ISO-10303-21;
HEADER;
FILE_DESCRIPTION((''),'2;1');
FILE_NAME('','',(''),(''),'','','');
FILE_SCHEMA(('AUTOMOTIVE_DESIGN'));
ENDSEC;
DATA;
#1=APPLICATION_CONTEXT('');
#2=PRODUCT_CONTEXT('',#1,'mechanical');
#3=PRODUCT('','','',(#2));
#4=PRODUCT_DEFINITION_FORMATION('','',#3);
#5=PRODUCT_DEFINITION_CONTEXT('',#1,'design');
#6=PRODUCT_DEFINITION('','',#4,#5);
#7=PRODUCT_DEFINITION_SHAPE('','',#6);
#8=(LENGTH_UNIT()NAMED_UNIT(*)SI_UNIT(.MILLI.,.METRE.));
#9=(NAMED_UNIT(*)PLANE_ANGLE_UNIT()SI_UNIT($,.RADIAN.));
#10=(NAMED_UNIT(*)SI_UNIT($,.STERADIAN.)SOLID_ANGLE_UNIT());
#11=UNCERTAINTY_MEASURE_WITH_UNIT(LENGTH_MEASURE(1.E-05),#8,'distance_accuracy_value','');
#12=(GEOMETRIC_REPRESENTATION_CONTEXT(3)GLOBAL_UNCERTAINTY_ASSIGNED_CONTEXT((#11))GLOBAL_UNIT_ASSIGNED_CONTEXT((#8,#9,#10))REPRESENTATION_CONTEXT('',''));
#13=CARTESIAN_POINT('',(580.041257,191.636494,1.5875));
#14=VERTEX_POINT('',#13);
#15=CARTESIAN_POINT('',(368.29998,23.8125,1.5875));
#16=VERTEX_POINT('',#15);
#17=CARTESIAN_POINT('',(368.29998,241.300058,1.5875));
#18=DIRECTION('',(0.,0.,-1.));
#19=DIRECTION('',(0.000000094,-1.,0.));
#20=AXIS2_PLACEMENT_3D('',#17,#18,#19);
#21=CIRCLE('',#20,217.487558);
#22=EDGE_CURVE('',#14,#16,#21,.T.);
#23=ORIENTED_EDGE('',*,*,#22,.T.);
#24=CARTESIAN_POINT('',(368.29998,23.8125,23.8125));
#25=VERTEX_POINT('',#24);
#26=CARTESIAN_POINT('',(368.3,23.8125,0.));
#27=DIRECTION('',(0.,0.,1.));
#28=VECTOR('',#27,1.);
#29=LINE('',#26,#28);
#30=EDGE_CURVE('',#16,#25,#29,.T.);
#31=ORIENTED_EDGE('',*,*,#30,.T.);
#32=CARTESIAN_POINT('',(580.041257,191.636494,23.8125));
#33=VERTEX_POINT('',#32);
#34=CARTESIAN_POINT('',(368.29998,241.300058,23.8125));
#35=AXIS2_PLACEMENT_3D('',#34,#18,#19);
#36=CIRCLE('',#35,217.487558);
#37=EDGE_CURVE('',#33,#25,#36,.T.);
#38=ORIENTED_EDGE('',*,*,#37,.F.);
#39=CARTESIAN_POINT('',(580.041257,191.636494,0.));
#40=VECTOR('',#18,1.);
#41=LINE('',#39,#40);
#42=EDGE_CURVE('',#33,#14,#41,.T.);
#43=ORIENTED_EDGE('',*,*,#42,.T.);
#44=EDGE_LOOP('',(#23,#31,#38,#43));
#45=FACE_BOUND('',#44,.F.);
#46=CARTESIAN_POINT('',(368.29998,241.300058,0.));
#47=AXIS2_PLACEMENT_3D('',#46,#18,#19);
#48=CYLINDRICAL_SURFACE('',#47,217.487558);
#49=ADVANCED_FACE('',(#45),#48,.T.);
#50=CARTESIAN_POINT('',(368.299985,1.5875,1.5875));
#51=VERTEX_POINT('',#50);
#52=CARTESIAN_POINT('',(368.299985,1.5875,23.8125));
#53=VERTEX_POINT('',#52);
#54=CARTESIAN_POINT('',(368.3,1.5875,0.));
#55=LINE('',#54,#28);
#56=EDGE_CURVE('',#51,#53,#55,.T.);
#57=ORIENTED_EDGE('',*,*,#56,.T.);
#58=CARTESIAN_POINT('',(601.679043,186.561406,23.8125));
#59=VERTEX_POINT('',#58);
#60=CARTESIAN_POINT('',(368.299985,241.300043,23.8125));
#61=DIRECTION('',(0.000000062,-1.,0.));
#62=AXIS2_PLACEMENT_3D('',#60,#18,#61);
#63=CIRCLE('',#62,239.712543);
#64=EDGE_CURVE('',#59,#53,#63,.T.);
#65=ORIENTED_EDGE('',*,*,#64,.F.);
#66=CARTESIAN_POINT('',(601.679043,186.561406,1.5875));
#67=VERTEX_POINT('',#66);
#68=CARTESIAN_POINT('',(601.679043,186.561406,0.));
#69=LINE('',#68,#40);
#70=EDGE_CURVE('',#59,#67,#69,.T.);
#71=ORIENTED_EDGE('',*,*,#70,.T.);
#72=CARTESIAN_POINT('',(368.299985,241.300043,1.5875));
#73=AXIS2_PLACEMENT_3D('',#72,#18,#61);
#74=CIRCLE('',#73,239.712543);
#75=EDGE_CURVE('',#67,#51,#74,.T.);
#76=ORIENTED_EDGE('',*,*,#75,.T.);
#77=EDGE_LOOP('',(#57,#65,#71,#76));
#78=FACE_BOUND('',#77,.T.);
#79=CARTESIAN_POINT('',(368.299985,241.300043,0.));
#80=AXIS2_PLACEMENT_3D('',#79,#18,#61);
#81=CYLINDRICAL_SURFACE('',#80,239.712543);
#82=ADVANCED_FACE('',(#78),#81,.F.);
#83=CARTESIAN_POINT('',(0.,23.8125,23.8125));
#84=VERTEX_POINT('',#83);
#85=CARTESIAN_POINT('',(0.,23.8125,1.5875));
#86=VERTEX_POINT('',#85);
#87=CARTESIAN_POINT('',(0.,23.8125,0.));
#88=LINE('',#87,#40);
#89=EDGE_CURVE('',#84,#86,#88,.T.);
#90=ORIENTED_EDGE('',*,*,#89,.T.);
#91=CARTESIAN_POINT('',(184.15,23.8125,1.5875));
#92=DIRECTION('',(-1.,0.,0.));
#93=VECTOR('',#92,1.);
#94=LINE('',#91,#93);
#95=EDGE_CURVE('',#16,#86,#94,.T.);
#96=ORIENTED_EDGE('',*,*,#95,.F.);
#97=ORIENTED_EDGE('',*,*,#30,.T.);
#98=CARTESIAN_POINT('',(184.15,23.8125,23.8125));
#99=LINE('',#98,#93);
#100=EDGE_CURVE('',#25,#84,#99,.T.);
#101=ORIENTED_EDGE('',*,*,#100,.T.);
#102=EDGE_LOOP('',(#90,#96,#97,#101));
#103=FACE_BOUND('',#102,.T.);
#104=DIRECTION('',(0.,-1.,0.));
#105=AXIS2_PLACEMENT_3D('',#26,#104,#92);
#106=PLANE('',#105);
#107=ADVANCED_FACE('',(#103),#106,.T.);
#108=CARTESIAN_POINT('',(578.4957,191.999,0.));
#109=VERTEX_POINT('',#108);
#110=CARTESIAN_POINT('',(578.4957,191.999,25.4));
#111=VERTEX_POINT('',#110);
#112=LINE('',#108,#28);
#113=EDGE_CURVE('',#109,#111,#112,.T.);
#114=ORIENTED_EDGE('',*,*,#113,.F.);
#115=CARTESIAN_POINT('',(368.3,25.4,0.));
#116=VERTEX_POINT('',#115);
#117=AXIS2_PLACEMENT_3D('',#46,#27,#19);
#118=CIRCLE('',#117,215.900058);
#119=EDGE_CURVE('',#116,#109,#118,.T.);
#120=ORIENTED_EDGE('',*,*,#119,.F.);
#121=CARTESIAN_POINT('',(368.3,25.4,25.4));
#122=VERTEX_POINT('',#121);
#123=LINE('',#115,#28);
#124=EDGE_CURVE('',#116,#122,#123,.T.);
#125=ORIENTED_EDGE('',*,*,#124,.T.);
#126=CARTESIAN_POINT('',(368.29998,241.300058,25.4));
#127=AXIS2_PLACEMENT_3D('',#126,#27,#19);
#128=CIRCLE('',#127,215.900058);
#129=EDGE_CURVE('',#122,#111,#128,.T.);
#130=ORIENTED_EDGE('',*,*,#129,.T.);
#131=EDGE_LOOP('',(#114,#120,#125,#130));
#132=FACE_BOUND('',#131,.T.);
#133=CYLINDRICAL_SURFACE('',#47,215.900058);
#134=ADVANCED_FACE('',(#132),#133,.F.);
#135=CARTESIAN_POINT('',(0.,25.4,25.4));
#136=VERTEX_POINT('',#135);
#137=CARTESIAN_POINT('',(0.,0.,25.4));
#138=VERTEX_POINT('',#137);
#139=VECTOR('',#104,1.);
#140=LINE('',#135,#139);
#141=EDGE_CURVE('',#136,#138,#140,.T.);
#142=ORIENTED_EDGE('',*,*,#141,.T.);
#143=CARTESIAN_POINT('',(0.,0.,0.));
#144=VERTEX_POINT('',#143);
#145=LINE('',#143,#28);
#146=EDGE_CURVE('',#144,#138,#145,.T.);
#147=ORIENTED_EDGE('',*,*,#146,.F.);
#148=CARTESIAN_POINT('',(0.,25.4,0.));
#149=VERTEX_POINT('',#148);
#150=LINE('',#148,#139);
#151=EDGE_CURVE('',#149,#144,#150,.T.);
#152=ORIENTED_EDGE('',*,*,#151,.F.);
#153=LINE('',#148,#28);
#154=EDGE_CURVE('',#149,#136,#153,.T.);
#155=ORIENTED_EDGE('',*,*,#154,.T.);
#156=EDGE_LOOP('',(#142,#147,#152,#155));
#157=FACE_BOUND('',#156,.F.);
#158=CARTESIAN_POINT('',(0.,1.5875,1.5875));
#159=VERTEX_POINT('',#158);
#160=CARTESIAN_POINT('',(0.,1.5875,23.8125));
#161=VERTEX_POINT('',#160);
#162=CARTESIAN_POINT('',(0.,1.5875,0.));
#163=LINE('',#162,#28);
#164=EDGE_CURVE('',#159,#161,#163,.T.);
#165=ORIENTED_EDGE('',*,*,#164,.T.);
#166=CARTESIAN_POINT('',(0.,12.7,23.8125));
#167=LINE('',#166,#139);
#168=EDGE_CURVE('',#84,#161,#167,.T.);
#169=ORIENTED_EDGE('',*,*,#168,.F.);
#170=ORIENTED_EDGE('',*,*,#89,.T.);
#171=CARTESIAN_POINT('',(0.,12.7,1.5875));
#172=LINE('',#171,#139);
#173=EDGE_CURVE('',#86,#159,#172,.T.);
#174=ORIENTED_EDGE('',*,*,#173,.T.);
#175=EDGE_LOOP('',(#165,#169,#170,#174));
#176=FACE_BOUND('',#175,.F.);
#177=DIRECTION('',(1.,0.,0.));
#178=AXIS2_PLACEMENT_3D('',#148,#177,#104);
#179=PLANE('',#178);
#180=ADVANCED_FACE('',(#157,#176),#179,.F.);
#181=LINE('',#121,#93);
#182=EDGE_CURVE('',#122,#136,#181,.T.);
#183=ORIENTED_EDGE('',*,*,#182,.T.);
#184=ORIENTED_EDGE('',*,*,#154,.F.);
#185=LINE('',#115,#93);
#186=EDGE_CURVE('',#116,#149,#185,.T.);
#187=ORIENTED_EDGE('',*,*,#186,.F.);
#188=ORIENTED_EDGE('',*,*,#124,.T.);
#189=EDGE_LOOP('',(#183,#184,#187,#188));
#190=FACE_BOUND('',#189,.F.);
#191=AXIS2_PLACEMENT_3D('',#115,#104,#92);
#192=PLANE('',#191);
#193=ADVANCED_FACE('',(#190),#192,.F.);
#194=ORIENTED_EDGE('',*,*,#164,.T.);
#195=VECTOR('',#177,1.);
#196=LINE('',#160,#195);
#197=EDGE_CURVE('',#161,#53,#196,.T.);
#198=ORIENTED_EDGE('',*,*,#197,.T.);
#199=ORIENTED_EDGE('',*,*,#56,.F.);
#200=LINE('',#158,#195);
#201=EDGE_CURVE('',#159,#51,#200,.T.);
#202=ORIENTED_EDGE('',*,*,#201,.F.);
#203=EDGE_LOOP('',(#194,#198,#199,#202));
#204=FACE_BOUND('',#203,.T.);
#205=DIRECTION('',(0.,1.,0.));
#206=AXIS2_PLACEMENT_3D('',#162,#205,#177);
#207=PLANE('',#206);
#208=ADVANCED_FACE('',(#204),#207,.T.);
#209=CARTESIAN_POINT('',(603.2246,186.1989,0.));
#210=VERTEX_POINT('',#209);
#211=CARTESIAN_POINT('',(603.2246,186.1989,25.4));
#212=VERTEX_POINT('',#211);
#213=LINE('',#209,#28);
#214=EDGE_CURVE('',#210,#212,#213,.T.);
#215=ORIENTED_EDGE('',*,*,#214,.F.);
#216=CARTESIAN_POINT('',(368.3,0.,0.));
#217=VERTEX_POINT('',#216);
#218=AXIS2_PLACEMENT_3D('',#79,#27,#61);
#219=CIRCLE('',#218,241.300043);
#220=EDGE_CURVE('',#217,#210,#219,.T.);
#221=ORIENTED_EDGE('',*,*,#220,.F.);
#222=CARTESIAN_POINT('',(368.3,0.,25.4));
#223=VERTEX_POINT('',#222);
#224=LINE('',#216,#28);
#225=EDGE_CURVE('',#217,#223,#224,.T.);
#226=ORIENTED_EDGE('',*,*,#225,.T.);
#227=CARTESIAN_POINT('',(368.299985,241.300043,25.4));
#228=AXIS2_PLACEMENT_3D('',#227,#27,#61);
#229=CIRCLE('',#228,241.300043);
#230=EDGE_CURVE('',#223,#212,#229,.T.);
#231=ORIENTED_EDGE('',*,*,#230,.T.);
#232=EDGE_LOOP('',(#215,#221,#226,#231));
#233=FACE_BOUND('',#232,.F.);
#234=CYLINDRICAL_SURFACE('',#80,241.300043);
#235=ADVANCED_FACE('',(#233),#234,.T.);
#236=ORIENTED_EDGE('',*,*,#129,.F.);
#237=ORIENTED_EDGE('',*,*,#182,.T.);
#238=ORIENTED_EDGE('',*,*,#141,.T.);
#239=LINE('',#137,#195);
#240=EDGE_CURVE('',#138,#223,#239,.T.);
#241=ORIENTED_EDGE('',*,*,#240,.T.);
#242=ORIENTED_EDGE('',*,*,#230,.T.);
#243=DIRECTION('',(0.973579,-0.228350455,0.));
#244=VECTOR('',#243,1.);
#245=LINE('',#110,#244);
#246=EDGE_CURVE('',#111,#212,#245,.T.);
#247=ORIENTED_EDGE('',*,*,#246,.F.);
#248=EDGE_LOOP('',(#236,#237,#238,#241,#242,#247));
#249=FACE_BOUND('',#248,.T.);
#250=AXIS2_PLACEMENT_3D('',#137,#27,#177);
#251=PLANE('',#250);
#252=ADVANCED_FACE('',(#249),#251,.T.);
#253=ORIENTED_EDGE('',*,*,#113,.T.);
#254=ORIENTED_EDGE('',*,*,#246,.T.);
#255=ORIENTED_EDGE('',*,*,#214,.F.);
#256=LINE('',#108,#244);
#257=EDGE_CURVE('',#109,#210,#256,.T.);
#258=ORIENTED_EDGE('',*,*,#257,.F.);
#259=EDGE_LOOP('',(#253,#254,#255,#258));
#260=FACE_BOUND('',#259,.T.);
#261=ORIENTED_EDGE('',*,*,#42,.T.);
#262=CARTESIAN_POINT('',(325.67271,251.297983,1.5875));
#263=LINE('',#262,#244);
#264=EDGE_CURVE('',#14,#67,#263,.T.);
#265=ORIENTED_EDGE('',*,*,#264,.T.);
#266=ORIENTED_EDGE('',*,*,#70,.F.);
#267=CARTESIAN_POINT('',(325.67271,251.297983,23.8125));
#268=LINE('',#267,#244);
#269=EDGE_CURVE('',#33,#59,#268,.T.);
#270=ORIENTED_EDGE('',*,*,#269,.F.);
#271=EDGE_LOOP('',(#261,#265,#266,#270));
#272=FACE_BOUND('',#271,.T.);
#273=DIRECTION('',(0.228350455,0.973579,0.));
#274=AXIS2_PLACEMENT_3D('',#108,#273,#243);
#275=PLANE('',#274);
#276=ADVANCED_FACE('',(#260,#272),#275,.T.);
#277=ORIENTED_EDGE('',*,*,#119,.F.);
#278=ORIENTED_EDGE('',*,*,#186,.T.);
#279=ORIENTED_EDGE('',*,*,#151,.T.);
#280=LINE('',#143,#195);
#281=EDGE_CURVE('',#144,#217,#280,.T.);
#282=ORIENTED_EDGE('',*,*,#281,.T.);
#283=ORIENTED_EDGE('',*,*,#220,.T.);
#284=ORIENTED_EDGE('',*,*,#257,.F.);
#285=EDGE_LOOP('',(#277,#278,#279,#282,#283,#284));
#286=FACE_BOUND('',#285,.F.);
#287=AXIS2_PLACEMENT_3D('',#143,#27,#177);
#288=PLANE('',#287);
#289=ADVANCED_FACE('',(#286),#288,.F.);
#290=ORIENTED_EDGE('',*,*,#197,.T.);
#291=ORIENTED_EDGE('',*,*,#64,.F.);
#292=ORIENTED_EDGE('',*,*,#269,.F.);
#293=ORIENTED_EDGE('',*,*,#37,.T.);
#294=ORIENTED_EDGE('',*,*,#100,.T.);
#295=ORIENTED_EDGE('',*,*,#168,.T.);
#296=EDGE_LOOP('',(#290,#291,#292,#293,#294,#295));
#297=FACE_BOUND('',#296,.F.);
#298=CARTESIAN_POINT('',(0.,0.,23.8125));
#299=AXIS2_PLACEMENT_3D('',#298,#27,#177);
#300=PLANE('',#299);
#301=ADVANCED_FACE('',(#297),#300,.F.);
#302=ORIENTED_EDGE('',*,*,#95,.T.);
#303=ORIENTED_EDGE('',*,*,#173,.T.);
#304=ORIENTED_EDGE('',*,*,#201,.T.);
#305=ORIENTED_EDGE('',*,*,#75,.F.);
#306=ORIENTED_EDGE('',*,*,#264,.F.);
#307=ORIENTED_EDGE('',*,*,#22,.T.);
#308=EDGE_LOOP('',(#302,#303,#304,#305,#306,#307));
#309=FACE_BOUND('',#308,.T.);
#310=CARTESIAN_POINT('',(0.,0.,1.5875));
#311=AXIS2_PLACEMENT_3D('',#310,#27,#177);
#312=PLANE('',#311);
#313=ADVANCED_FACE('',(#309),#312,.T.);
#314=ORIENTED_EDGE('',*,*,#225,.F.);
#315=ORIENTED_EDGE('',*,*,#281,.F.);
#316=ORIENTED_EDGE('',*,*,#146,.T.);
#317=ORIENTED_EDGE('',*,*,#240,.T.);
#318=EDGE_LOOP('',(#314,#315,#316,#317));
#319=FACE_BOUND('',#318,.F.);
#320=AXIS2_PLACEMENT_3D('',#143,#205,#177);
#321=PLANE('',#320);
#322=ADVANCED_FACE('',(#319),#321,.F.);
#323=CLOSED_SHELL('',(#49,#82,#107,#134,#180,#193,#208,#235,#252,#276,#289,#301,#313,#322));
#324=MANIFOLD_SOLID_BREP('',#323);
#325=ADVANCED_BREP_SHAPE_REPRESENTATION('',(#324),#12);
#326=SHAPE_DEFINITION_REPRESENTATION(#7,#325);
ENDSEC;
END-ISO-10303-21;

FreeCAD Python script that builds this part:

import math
import FreeCAD as App
import Part
import Sketcher
Q = App.Units.Quantity


def faces_at(feature, points):
    """Names of the faces that lie closest to the given points."""
    faces = feature.Shape.Faces
    near = lambda p: min(range(len(faces)), key=lambda i: faces[i].distToShape(Part.Vertex(*p))[0])
    return sorted({f"Face{near(p) + 1}" for p in points})

doc = App.newDocument("Part")
body = doc.addObject("PartDesign::Body", "Body")

# Sketch on XY plane
sketch1 = body.newObject("Sketcher::SketchObject", "Sketch")
sketch1.AttachmentSupport = (doc.getObject("XY_Plane"), [""])
sketch1.MapMode = "FlatFace"
sketch1.addGeometry([
    Part.ArcOfCircle(Part.Circle(App.Vector(368, 241, 0), App.Vector(0, 0, 1), 216), math.radians(-90), math.radians(-13)),  # 0
    Part.LineSegment(App.Vector(368, 25, 0), App.Vector(0, 25, 0)),  # 1
    Part.LineSegment(App.Vector(0, 25, 0), App.Vector(0, 0, 0)),  # 2
    Part.LineSegment(App.Vector(0, 0, 0), App.Vector(368, 0, 0)),  # 3
    Part.ArcOfCircle(Part.Circle(App.Vector(368, 241, 0), App.Vector(0, 0, 1), 241), math.radians(-90), math.radians(-13)),  # 4
    Part.LineSegment(App.Vector(603, 186, 0), App.Vector(578, 192, 0)),  # 5
], False)
sketch1.addConstraint([
    Sketcher.Constraint("Tangent", 0, 1, 1, 1),
    Sketcher.Constraint("Coincident", 1, 2, 2, 1),
    Sketcher.Constraint("Coincident", 2, 2, 3, 1),
    Sketcher.Constraint("Tangent", 3, 2, 4, 1),
    Sketcher.Constraint("Coincident", 4, 2, 5, 1),
    Sketcher.Constraint("Coincident", 5, 2, 0, 2),
    Sketcher.Constraint("Horizontal", 1),
    Sketcher.Constraint("Vertical", 2),
    Sketcher.Constraint("Horizontal", 3),
    Sketcher.Constraint("Coincident", 2, 2, -1, 1),
    Sketcher.Constraint("Coincident", 4, 3, 0, 3),
    Sketcher.Constraint("Radius", 0, Q("8.5 in")),
    Sketcher.Constraint("DistanceY", 2, 2, 2, 1, Q("1 in")),
    Sketcher.Constraint("DistanceX", 1, 2, 1, 1, Q("14.5 in")),
    Sketcher.Constraint("Angle", 5, Q("166.8 deg")),
    Sketcher.Constraint("DistanceX", -1, 1, 4, 2, Q("23.749 in")),
])
pad1 = body.newObject("PartDesign::Pad", "Pad")
pad1.Profile = sketch1
pad1.Length = Q("1 in")
doc.recompute()

thickness = body.newObject("PartDesign::Thickness", "Thickness")
thickness.Base = (pad1, faces_at(pad1, [(0, 8.467, 8.467), (586.739, 190.066, 16.933)]))
thickness.Value = Q("0.0625 in")
thickness.Reversed = True
thickness.Join = "Intersection"

doc.recompute()
